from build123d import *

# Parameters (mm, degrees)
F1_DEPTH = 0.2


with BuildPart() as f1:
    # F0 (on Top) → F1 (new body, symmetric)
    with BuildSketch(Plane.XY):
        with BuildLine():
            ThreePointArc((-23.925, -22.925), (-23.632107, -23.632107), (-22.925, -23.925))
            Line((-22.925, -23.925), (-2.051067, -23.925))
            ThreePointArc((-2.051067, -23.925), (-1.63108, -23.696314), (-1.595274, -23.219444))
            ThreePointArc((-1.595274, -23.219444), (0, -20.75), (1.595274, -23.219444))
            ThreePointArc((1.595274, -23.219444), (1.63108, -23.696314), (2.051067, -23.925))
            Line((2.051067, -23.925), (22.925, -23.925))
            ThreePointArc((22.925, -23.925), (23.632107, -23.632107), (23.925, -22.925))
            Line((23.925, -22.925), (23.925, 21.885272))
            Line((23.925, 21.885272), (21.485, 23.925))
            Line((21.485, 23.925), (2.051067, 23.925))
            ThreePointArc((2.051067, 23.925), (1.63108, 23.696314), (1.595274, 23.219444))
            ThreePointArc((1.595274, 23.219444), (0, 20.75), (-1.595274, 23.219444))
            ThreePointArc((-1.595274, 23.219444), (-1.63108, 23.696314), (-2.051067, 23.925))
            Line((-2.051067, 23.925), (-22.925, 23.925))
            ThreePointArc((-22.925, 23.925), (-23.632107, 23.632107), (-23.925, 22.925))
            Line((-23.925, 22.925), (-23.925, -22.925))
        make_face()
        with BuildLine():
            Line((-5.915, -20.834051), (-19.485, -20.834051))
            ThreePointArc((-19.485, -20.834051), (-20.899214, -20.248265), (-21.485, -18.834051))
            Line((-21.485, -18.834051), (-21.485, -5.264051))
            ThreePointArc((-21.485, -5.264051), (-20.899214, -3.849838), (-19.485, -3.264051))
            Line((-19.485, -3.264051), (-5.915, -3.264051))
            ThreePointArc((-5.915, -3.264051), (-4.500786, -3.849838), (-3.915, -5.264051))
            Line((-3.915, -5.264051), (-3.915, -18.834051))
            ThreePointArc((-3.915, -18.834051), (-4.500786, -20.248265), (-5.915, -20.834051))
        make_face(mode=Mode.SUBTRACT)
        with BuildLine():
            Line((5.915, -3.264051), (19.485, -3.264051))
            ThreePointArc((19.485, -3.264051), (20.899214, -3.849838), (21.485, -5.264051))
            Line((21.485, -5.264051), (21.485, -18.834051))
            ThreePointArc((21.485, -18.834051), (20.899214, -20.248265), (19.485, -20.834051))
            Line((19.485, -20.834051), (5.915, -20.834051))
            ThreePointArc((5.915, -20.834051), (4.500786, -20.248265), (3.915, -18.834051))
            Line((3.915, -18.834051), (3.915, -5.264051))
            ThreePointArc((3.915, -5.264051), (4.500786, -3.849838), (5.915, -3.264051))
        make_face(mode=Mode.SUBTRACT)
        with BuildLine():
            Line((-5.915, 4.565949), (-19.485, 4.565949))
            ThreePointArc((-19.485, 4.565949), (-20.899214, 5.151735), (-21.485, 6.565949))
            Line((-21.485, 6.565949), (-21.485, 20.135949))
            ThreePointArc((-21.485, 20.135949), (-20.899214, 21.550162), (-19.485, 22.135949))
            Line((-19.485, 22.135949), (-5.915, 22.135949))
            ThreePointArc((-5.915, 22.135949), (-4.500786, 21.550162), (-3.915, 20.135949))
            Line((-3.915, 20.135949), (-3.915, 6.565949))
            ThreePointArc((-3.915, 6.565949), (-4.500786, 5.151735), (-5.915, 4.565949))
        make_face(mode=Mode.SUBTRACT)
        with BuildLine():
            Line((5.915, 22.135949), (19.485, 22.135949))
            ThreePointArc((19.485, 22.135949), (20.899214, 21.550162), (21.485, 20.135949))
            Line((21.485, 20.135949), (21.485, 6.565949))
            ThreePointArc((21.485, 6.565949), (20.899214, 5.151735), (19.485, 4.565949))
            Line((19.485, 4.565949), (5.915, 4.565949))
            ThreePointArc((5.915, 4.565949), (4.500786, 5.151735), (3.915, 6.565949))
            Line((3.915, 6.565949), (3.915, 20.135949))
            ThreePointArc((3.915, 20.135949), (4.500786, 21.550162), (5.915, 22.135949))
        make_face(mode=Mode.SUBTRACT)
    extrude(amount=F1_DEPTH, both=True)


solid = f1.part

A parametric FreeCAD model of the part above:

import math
import FreeCAD as App
import Part
import Sketcher
Q = App.Units.Quantity

doc = App.newDocument("Part")
body = doc.addObject("PartDesign::Body", "Body")

# Sketch on XY plane
sketch1 = doc.addObject("Sketcher::SketchObject", "Sketch")
body.addObject(sketch1)
sketch1.AttachmentSupport = (doc.XY_Plane, [""])
sketch1.MapMode = "FlatFace"
sketch1.addGeometry(Part.ArcOfCircle(Part.Circle(App.Vector(-22.9, -22.9, 0), App.Vector(0, 0, 1), 1), math.radians(180), math.radians(270)), False)
sketch1.addGeometry(Part.LineSegment(App.Vector(-22.9, -23.9, 0), App.Vector(-2.1, -23.9, 0)), False)
sketch1.addGeometry(Part.ArcOfCircle(Part.Circle(App.Vector(-2.1, -23.4, 0), App.Vector(0, 0, 1), 0.5), math.radians(-90), math.radians(24)), False)
sketch1.addGeometry(Part.ArcOfCircle(Part.Circle(App.Vector(0, -22.5, 0), App.Vector(0, 0, 1), 1.7), math.radians(-24), math.radians(204)), False)
sketch1.addGeometry(Part.ArcOfCircle(Part.Circle(App.Vector(2.1, -23.4, 0), App.Vector(0, 0, 1), 0.5), math.radians(156), math.radians(270)), False)
sketch1.addGeometry(Part.LineSegment(App.Vector(2.1, -23.9, 0), App.Vector(22.9, -23.9, 0)), False)
sketch1.addGeometry(Part.ArcOfCircle(Part.Circle(App.Vector(22.9, -22.9, 0), App.Vector(0, 0, 1), 1), math.radians(-90), math.radians(0)), False)
sketch1.addGeometry(Part.LineSegment(App.Vector(23.9, -22.9, 0), App.Vector(23.9, 21.9, 0)), False)
sketch1.addGeometry(Part.LineSegment(App.Vector(23.9, 21.9, 0), App.Vector(21.5, 23.9, 0)), False)
sketch1.addGeometry(Part.LineSegment(App.Vector(21.5, 23.9, 0), App.Vector(2.1, 23.9, 0)), False)
sketch1.addGeometry(Part.ArcOfCircle(Part.Circle(App.Vector(2.1, 23.4, 0), App.Vector(0, 0, 1), 0.5), math.radians(90), math.radians(204)), False)
sketch1.addGeometry(Part.ArcOfCircle(Part.Circle(App.Vector(0, 22.5, 0), App.Vector(0, 0, 1), 1.7), math.radians(156), math.radians(384)), False)
sketch1.addGeometry(Part.ArcOfCircle(Part.Circle(App.Vector(-2.1, 23.4, 0), App.Vector(0, 0, 1), 0.5), math.radians(-24), math.radians(90)), False)
sketch1.addGeometry(Part.LineSegment(App.Vector(-2.1, 23.9, 0), App.Vector(-22.9, 23.9, 0)), False)
sketch1.addGeometry(Part.ArcOfCircle(Part.Circle(App.Vector(-22.9, 22.9, 0), App.Vector(0, 0, 1), 1), math.radians(90), math.radians(180)), False)
sketch1.addGeometry(Part.LineSegment(App.Vector(-23.9, 22.9, 0), App.Vector(-23.9, -22.9, 0)), False)
sketch1.addGeometry(Part.ArcOfCircle(Part.Circle(App.Vector(-5.9, -18.8, 0), App.Vector(0, 0, 1), 2), math.radians(-90), math.radians(0)), False)
sketch1.addGeometry(Part.LineSegment(App.Vector(-5.9, -20.8, 0), App.Vector(-19.5, -20.8, 0)), False)
sketch1.addGeometry(Part.ArcOfCircle(Part.Circle(App.Vector(-19.5, -18.8, 0), App.Vector(0, 0, 1), 2), math.radians(180), math.radians(270)), False)
sketch1.addGeometry(Part.LineSegment(App.Vector(-21.5, -18.8, 0), App.Vector(-21.5, -5.3, 0)), False)
sketch1.addGeometry(Part.ArcOfCircle(Part.Circle(App.Vector(-19.5, -5.3, 0), App.Vector(0, 0, 1), 2), math.radians(90), math.radians(180)), False)
sketch1.addGeometry(Part.LineSegment(App.Vector(-19.5, -3.3, 0), App.Vector(-5.9, -3.3, 0)), False)
sketch1.addGeometry(Part.ArcOfCircle(Part.Circle(App.Vector(-5.9, -5.3, 0), App.Vector(0, 0, 1), 2), math.radians(0), math.radians(90)), False)
sketch1.addGeometry(Part.LineSegment(App.Vector(-3.9, -5.3, 0), App.Vector(-3.9, -18.8, 0)), False)
sketch1.addGeometry(Part.ArcOfCircle(Part.Circle(App.Vector(5.9, -5.3, 0), App.Vector(0, 0, 1), 2), math.radians(90), math.radians(180)), False)
sketch1.addGeometry(Part.LineSegment(App.Vector(5.9, -3.3, 0), App.Vector(19.5, -3.3, 0)), False)
sketch1.addGeometry(Part.ArcOfCircle(Part.Circle(App.Vector(19.5, -5.3, 0), App.Vector(0, 0, 1), 2), math.radians(0), math.radians(90)), False)
sketch1.addGeometry(Part.LineSegment(App.Vector(21.5, -5.3, 0), App.Vector(21.5, -18.8, 0)), False)
sketch1.addGeometry(Part.ArcOfCircle(Part.Circle(App.Vector(19.5, -18.8, 0), App.Vector(0, 0, 1), 2), math.radians(-90), math.radians(0)), False)
sketch1.addGeometry(Part.LineSegment(App.Vector(19.5, -20.8, 0), App.Vector(5.9, -20.8, 0)), False)
sketch1.addGeometry(Part.ArcOfCircle(Part.Circle(App.Vector(5.9, -18.8, 0), App.Vector(0, 0, 1), 2), math.radians(180), math.radians(270)), False)
sketch1.addGeometry(Part.LineSegment(App.Vector(3.9, -18.8, 0), App.Vector(3.9, -5.3, 0)), False)
sketch1.addGeometry(Part.ArcOfCircle(Part.Circle(App.Vector(-5.9, 6.6, 0), App.Vector(0, 0, 1), 2), math.radians(-90), math.radians(0)), False)
sketch1.addGeometry(Part.LineSegment(App.Vector(-5.9, 4.6, 0), App.Vector(-19.5, 4.6, 0)), False)
sketch1.addGeometry(Part.ArcOfCircle(Part.Circle(App.Vector(-19.5, 6.6, 0), App.Vector(0, 0, 1), 2), math.radians(180), math.radians(270)), False)
sketch1.addGeometry(Part.LineSegment(App.Vector(-21.5, 6.6, 0), App.Vector(-21.5, 20.1, 0)), False)
sketch1.addGeometry(Part.ArcOfCircle(Part.Circle(App.Vector(-19.5, 20.1, 0), App.Vector(0, 0, 1), 2), math.radians(90), math.radians(180)), False)
sketch1.addGeometry(Part.LineSegment(App.Vector(-19.5, 22.1, 0), App.Vector(-5.9, 22.1, 0)), False)
sketch1.addGeometry(Part.ArcOfCircle(Part.Circle(App.Vector(-5.9, 20.1, 0), App.Vector(0, 0, 1), 2), math.radians(0), math.radians(90)), False)
sketch1.addGeometry(Part.LineSegment(App.Vector(-3.9, 20.1, 0), App.Vector(-3.9, 6.6, 0)), False)
sketch1.addGeometry(Part.ArcOfCircle(Part.Circle(App.Vector(5.9, 20.1, 0), App.Vector(0, 0, 1), 2), math.radians(90), math.radians(180)), False)
sketch1.addGeometry(Part.LineSegment(App.Vector(5.9, 22.1, 0), App.Vector(19.5, 22.1, 0)), False)
sketch1.addGeometry(Part.ArcOfCircle(Part.Circle(App.Vector(19.5, 20.1, 0), App.Vector(0, 0, 1), 2), math.radians(0), math.radians(90)), False)
sketch1.addGeometry(Part.LineSegment(App.Vector(21.5, 20.1, 0), App.Vector(21.5, 6.6, 0)), False)
sketch1.addGeometry(Part.ArcOfCircle(Part.Circle(App.Vector(19.5, 6.6, 0), App.Vector(0, 0, 1), 2), math.radians(-90), math.radians(0)), False)
sketch1.addGeometry(Part.LineSegment(App.Vector(19.5, 4.6, 0), App.Vector(5.9, 4.6, 0)), False)
sketch1.addGeometry(Part.ArcOfCircle(Part.Circle(App.Vector(5.9, 6.6, 0), App.Vector(0, 0, 1), 2), math.radians(180), math.radians(270)), False)
sketch1.addGeometry(Part.LineSegment(App.Vector(3.9, 6.6, 0), App.Vector(3.9, 20.1, 0)), False)
sketch1.addConstraint(Sketcher.Constraint("Tangent", 0, 2, 1, 1))
sketch1.addConstraint(Sketcher.Constraint("Tangent", 1, 2, 2, 1))
sketch1.addConstraint(Sketcher.Constraint("Tangent", 2, 2, 3, 2))
sketch1.addConstraint(Sketcher.Constraint("Tangent", 3, 1, 4, 1))
sketch1.addConstraint(Sketcher.Constraint("Tangent", 4, 2, 5, 1))
sketch1.addConstraint(Sketcher.Constraint("Tangent", 5, 2, 6, 1))
sketch1.addConstraint(Sketcher.Constraint("Tangent", 6, 2, 7, 1))
sketch1.addConstraint(Sketcher.Constraint("Coincident", 7, 2, 8, 1))
sketch1.addConstraint(Sketcher.Constraint("Coincident", 8, 2, 9, 1))
sketch1.addConstraint(Sketcher.Constraint("Tangent", 9, 2, 10, 1))
sketch1.addConstraint(Sketcher.Constraint("Tangent", 10, 2, 11, 2))
sketch1.addConstraint(Sketcher.Constraint("Tangent", 11, 1, 12, 1))
sketch1.addConstraint(Sketcher.Constraint("Tangent", 12, 2, 13, 1))
sketch1.addConstraint(Sketcher.Constraint("Tangent", 13, 2, 14, 1))
sketch1.addConstraint(Sketcher.Constraint("Tangent", 14, 2, 15, 1))
sketch1.addConstraint(Sketcher.Constraint("Tangent", 15, 2, 0, 1))
sketch1.addConstraint(Sketcher.Constraint("Tangent", 16, 1, 17, 1))
sketch1.addConstraint(Sketcher.Constraint("Tangent", 17, 2, 18, 2))
sketch1.addConstraint(Sketcher.Constraint("Tangent", 18, 1, 19, 1))
sketch1.addConstraint(Sketcher.Constraint("Tangent", 19, 2, 20, 2))
sketch1.addConstraint(Sketcher.Constraint("Tangent", 20, 1, 21, 1))
sketch1.addConstraint(Sketcher.Constraint("Tangent", 21, 2, 22, 2))
sketch1.addConstraint(Sketcher.Constraint("Tangent", 22, 1, 23, 1))
sketch1.addConstraint(Sketcher.Constraint("Tangent", 23, 2, 16, 2))
sketch1.addConstraint(Sketcher.Constraint("Tangent", 24, 1, 25, 1))
sketch1.addConstraint(Sketcher.Constraint("Tangent", 25, 2, 26, 2))
sketch1.addConstraint(Sketcher.Constraint("Tangent", 26, 1, 27, 1))
sketch1.addConstraint(Sketcher.Constraint("Tangent", 27, 2, 28, 2))
sketch1.addConstraint(Sketcher.Constraint("Tangent", 28, 1, 29, 1))
sketch1.addConstraint(Sketcher.Constraint("Tangent", 29, 2, 30, 2))
sketch1.addConstraint(Sketcher.Constraint("Tangent", 30, 1, 31, 1))
sketch1.addConstraint(Sketcher.Constraint("Tangent", 31, 2, 24, 2))
sketch1.addConstraint(Sketcher.Constraint("Tangent", 32, 1, 33, 1))
sketch1.addConstraint(Sketcher.Constraint("Tangent", 33, 2, 34, 2))
sketch1.addConstraint(Sketcher.Constraint("Tangent", 34, 1, 35, 1))
sketch1.addConstraint(Sketcher.Constraint("Tangent", 35, 2, 36, 2))
sketch1.addConstraint(Sketcher.Constraint("Tangent", 36, 1, 37, 1))
sketch1.addConstraint(Sketcher.Constraint("Tangent", 37, 2, 38, 2))
sketch1.addConstraint(Sketcher.Constraint("Tangent", 38, 1, 39, 1))
sketch1.addConstraint(Sketcher.Constraint("Tangent", 39, 2, 32, 2))
sketch1.addConstraint(Sketcher.Constraint("Tangent", 40, 1, 41, 1))
sketch1.addConstraint(Sketcher.Constraint("Tangent", 41, 2, 42, 2))
sketch1.addConstraint(Sketcher.Constraint("Tangent", 42, 1, 43, 1))
sketch1.addConstraint(Sketcher.Constraint("Tangent", 43, 2, 44, 2))
sketch1.addConstraint(Sketcher.Constraint("Tangent", 44, 1, 45, 1))
sketch1.addConstraint(Sketcher.Constraint("Tangent", 45, 2, 46, 2))
sketch1.addConstraint(Sketcher.Constraint("Tangent", 46, 1, 47, 1))
sketch1.addConstraint(Sketcher.Constraint("Tangent", 47, 2, 40, 2))
sketch1.addConstraint(Sketcher.Constraint("Horizontal", 1))
sketch1.addConstraint(Sketcher.Constraint("Horizontal", 5))
sketch1.addConstraint(Sketcher.Constraint("Vertical", 7))
sketch1.addConstraint(Sketcher.Constraint("Horizontal", 9))
sketch1.addConstraint(Sketcher.Constraint("Horizontal", 13))
sketch1.addConstraint(Sketcher.Constraint("Vertical", 15))
sketch1.addConstraint(Sketcher.Constraint("Horizontal", 17))
sketch1.addConstraint(Sketcher.Constraint("Vertical", 19))
sketch1.addConstraint(Sketcher.Constraint("Horizontal", 21))
sketch1.addConstraint(Sketcher.Constraint("Vertical", 23))
sketch1.addConstraint(Sketcher.Constraint("Horizontal", 25))
sketch1.addConstraint(Sketcher.Constraint("Vertical", 27))
sketch1.addConstraint(Sketcher.Constraint("Horizontal", 29))
sketch1.addConstraint(Sketcher.Constraint("Vertical", 31))
sketch1.addConstraint(Sketcher.Constraint("Horizontal", 33))
sketch1.addConstraint(Sketcher.Constraint("Vertical", 35))
sketch1.addConstraint(Sketcher.Constraint("Horizontal", 37))
sketch1.addConstraint(Sketcher.Constraint("Vertical", 39))
sketch1.addConstraint(Sketcher.Constraint("Horizontal", 41))
sketch1.addConstraint(Sketcher.Constraint("Vertical", 43))
sketch1.addConstraint(Sketcher.Constraint("Horizontal", 45))
sketch1.addConstraint(Sketcher.Constraint("Vertical", 47))
sketch1.addConstraint(Sketcher.Constraint("Equal", 2, 4))
sketch1.addConstraint(Sketcher.Constraint("Equal", 0, 6))
sketch1.addConstraint(Sketcher.Constraint("Equal", 4, 10))
sketch1.addConstraint(Sketcher.Constraint("Equal", 3, 11))
sketch1.addConstraint(Sketcher.Constraint("Equal", 10, 12))
sketch1.addConstraint(Sketcher.Constraint("Equal", 6, 14))
sketch1.addConstraint(Sketcher.Constraint("Equal", 16, 18))
sketch1.addConstraint(Sketcher.Constraint("Equal", 18, 20))
sketch1.addConstraint(Sketcher.Constraint("Equal", 20, 22))
sketch1.addConstraint(Sketcher.Constraint("Equal", 22, 24))
sketch1.addConstraint(Sketcher.Constraint("Equal", 24, 26))
sketch1.addConstraint(Sketcher.Constraint("Equal", 26, 28))
sketch1.addConstraint(Sketcher.Constraint("Equal", 28, 30))
sketch1.addConstraint(Sketcher.Constraint("Equal", 30, 32))
sketch1.addConstraint(Sketcher.Constraint("Equal", 32, 34))
sketch1.addConstraint(Sketcher.Constraint("Equal", 34, 36))
sketch1.addConstraint(Sketcher.Constraint("Equal", 36, 38))
sketch1.addConstraint(Sketcher.Constraint("Equal", 38, 40))
sketch1.addConstraint(Sketcher.Constraint("Equal", 40, 42))
sketch1.addConstraint(Sketcher.Constraint("Equal", 42, 44))
sketch1.addConstraint(Sketcher.Constraint("Equal", 44, 46))
sketch1.addConstraint(Sketcher.Constraint("Symmetric", 2, 3, 10, 3, -1, 1))
sketch1.addConstraint(Sketcher.Constraint("Symmetric", 4, 3, 12, 3, -1, 1))
sketch1.addConstraint(Sketcher.Constraint("Symmetric", 2, 3, 4, 3, -2))
sketch1.addConstraint(Sketcher.Constraint("Symmetric", 22, 3, 24, 3, -2))
sketch1.addConstraint(Sketcher.Constraint("Symmetric", 18, 3, 28, 3, -2))
sketch1.addConstraint(Sketcher.Constraint("Symmetric", 38, 3, 40, 3, -2))
sketch1.addConstraint(Sketcher.Constraint("Symmetric", 34, 3, 44, 3, -2))
sketch1.addConstraint(Sketcher.Constraint("Vertical", 22, 3, 32, 3))
sketch1.addConstraint(Sketcher.Constraint("Vertical", 20, 3, 34, 3))
sketch1.addConstraint(Sketcher.Constraint("Vertical", 8, 2, 26, 1))
sketch1.addConstraint(Sketcher.Constraint("Equal", 1, 5))
sketch1.addConstraint(Sketcher.Constraint("Equal", 45, 19))
sketch1.addConstraint(Sketcher.Constraint("Equal", 31, 35))
sketch1.addConstraint(Sketcher.Constraint("Radius", 0, Q("0.999999 mm")))
sketch1.addConstraint(Sketcher.Constraint("Radius", 16, Q("1.999999 mm")))
sketch1.addConstraint(Sketcher.Constraint("Radius", 2, Q("0.5 mm")))
sketch1.addConstraint(Sketcher.Constraint("Radius", 3, Q("1.75 mm")))
sketch1.addConstraint(Sketcher.Constraint("DistanceX", 17, 2, 17, 1, Q("13.57 mm")))
sketch1.addConstraint(Sketcher.Constraint("DistanceY", 15, 2, 15, 1, Q("45.85 mm")))
sketch1.addConstraint(Sketcher.Constraint("DistanceY", 3, 3, -1, 1, Q("22.5 mm")))
sketch1.addConstraint(Sketcher.Constraint("DistanceX", 0, 3, -1, 1, Q("22.925001 mm")))
sketch1.addConstraint(Sketcher.Constraint("DistanceX", 16, 3, -1, 1, Q("5.914999 mm")))
sketch1.addConstraint(Sketcher.Constraint("DistanceY", 7, 1, 7, 2, Q("44.810272 mm")))
sketch1.addConstraint(Sketcher.Constraint("DistanceY", 20, 3, -1, 1, Q("5.264051 mm")))
sketch1.addConstraint(Sketcher.Constraint("DistanceY", -1, 1, 36, 3, Q("20.135949 mm")))
pad1 = doc.addObject("PartDesign::Pad", "Pad")
body.addObject(pad1)
pad1.Profile = sketch1
pad1.Length = 0.4
pad1.Midplane = True

doc.recompute()
